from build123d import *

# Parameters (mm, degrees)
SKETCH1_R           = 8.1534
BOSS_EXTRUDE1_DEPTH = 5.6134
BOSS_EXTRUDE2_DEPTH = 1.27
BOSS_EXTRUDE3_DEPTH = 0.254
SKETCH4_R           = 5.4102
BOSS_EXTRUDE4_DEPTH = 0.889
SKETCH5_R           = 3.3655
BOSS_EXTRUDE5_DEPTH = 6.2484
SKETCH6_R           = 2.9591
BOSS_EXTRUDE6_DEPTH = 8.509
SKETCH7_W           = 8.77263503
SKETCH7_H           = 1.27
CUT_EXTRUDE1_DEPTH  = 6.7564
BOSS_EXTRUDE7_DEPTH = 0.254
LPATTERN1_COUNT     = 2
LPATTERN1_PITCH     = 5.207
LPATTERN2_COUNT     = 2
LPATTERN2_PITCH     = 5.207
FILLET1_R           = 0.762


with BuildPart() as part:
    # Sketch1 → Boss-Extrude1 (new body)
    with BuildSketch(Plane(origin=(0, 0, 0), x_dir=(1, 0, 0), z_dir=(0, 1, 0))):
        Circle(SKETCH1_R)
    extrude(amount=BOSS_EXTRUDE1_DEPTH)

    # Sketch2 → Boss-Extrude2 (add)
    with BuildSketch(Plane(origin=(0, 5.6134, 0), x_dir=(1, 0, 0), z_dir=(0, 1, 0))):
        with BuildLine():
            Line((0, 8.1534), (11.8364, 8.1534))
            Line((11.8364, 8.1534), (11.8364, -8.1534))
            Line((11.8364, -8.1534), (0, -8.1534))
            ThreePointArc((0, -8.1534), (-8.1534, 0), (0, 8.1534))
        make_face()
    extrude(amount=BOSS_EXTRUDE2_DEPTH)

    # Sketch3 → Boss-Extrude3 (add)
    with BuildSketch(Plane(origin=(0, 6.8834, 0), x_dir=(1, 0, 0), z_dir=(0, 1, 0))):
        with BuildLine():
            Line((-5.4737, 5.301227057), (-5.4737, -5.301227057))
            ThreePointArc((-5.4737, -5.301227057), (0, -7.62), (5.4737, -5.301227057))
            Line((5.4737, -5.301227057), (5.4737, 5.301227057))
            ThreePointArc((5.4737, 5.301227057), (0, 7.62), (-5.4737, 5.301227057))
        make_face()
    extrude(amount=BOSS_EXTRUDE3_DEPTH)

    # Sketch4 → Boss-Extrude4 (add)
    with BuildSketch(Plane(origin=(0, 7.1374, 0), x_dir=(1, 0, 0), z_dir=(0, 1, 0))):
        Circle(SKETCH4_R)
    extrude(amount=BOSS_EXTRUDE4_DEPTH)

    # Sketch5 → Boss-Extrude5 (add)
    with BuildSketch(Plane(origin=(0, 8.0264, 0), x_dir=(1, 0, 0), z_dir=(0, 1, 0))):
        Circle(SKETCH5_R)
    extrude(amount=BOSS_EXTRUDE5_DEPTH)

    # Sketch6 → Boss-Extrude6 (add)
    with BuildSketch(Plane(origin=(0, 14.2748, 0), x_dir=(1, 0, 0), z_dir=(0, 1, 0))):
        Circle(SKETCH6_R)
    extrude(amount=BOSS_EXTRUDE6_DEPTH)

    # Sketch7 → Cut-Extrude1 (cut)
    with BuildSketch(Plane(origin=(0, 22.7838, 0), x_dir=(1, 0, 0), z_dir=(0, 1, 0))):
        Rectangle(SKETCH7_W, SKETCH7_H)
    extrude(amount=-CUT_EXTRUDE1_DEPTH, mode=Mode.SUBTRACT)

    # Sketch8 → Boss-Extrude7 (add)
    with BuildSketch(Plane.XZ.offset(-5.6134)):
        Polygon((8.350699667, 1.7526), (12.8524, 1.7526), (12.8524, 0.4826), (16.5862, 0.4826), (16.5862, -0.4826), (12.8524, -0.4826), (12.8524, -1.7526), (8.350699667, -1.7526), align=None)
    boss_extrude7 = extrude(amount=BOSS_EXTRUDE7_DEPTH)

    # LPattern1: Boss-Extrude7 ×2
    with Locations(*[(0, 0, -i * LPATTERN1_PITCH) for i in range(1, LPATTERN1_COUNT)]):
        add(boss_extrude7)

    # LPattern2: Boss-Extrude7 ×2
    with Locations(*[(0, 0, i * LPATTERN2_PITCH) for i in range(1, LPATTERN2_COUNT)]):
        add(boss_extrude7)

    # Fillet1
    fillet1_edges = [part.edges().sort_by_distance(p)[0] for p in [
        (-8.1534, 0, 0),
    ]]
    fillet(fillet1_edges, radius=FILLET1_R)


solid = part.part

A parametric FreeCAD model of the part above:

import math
import FreeCAD as App
import Part
import Sketcher

V = App.Vector
Q = App.Units.Quantity


def edges_at(feature, points):
    """Names of the edges that pass closest to the given points."""
    edges = feature.Shape.Edges
    near = lambda p: min(range(len(edges)), key=lambda i: edges[i].distToShape(Part.Vertex(*p))[0])
    return sorted({f"Edge{near(p) + 1}" for p in points})

doc = App.newDocument("Part")
params = doc.addObject("Spreadsheet::Sheet", "Params")
for row, (alias, value) in enumerate([
    ("sketch1_diameter", "0.642 in"),
    ("pad1_length", "0.221 in"),
    ("sketch2_radius", "0.321 in"),
    ("sketch2_width", "0.466 in"),
    ("pad2_length", "0.05 in"),
    ("sketch3_radius", "0.3 in"),
    ("pad3_length", "0.01 in"),
    ("sketch4_diameter", "0.426 in"),
    ("pad4_length", "0.035 in"),
    ("sketch5_diameter", "0.265 in"),
    ("pad5_length", "0.246 in"),
    ("sketch6_diameter", "0.233 in"),
    ("pad6_length", "0.335 in"),
    ("sketch7_height", "0.05 in"),
    ("pocket1_length", "0.266 in"),
    ("sketch8_height", "0.05 in"),
    ("sketch8_width", "0.147 in"),
    ("sketch8_height2", "0.138 in"),
    ("pad7_length", "0.01 in"),
    ("linearpattern_pitch", "0.205 in"),
    ("linearpattern2_pitch", "0.205 in"),
    ("fillet_radius", "0.03 in"),
], start=1):
    params.set(f"A{row}", alias)
    params.set(f"B{row}", "=" + value)
    params.setAlias(f"B{row}", alias)

body = doc.addObject("PartDesign::Body", "Body")

sketch1 = doc.addObject("Sketcher::SketchObject", "Sketch")
body.addObject(sketch1)
sketch1.AttachmentSupport = (doc.XZ_Plane, [""])
sketch1.MapMode = "FlatFace"
sketch1.addGeometry(Part.Circle(V(0, 0, 0), V(0, 0, 1), 8.1534), False)
sketch1.addConstraint([
    Sketcher.Constraint("Coincident", 0, 3, -1, 1),
    Sketcher.Constraint("Diameter", 0, Q("0.642 in")),
])
sketch1.setExpression("Constraints[1]", "Params.sketch1_diameter")
pad1 = doc.addObject("PartDesign::Pad", "Pad")
body.addObject(pad1)
pad1.Profile = sketch1
pad1.setExpression("Length", "Params.pad1_length")
pad1.Reversed = True

sketch2 = doc.addObject("Sketcher::SketchObject", "Sketch001")
body.addObject(sketch2)
sketch2.AttachmentSupport = (doc.XZ_Plane, [""])
sketch2.MapMode = "FlatFace"
sketch2.AttachmentOffset = App.Placement(V(0, 0, -0.221 * 25.4), App.Rotation())
sketch2.addGeometry([
    Part.LineSegment(V(11.8364, -8.1534, 0), V(0, -8.1534, 0)),
    Part.ArcOfCircle(Part.Circle(V(0, 0, 0), V(0, 0, 1), 8.1534), math.radians(90), math.radians(270)),
    Part.LineSegment(V(0, 8.1534, 0), V(11.8364, 8.1534, 0)),
    Part.LineSegment(V(11.8364, 8.1534, 0), V(11.8364, -8.1534, 0)),
], False)
sketch2.addConstraint([
    Sketcher.Constraint("Tangent", 0, 2, 1, 2),
    Sketcher.Constraint("Tangent", 1, 1, 2, 1),
    Sketcher.Constraint("Coincident", 2, 2, 3, 1),
    Sketcher.Constraint("Coincident", 3, 2, 0, 1),
    Sketcher.Constraint("Horizontal", 0),
    Sketcher.Constraint("Horizontal", 2),
    Sketcher.Constraint("Vertical", 3),
    Sketcher.Constraint("Coincident", 1, 3, -1, 1),
    Sketcher.Constraint("Radius", 1, Q("0.321 in")),
    Sketcher.Constraint("DistanceX", 0, 2, 0, 1, Q("0.466 in")),
])
sketch2.setExpression("Constraints[8]", "Params.sketch2_radius")
sketch2.setExpression("Constraints[9]", "Params.sketch2_width")
pad2 = doc.addObject("PartDesign::Pad", "Pad001")
body.addObject(pad2)
pad2.Profile = sketch2
pad2.setExpression("Length", "Params.pad2_length")
pad2.Reversed = True

sketch3 = doc.addObject("Sketcher::SketchObject", "Sketch002")
body.addObject(sketch3)
sketch3.AttachmentSupport = (doc.XZ_Plane, [""])
sketch3.MapMode = "FlatFace"
sketch3.AttachmentOffset = App.Placement(V(0, 0, -0.271 * 25.4), App.Rotation())
sketch3.addGeometry([
    Part.LineSegment(V(-5.4737, -5.301227, 0), V(-5.4737, 5.301227, 0)),
    Part.ArcOfCircle(Part.Circle(V(0, 0, 0), V(0, 0, 1), 7.62), math.radians(44.082952), math.radians(135.917048)),
    Part.LineSegment(V(5.4737, 5.301227, 0), V(5.4737, -5.301227, 0)),
    Part.ArcOfCircle(Part.Circle(V(0, 0, 0), V(0, 0, 1), 7.62), math.radians(-135.917048), math.radians(-44.082952)),
], False)
sketch3.addConstraint([
    Sketcher.Constraint("Coincident", 0, 2, 1, 2),
    Sketcher.Constraint("Coincident", 1, 1, 2, 1),
    Sketcher.Constraint("Coincident", 2, 2, 3, 2),
    Sketcher.Constraint("Coincident", 3, 1, 0, 1),
    Sketcher.Constraint("Vertical", 0),
    Sketcher.Constraint("Vertical", 2),
    Sketcher.Constraint("Coincident", 1, 3, -1, 1),
    Sketcher.Constraint("Coincident", 3, 3, -1, 1),
    Sketcher.Constraint("Equal", 1, 3),
    Sketcher.Constraint("Horizontal", 0, 2, 1, 1),
    Sketcher.Constraint("Radius", 1, Q("0.3 in")),
    Sketcher.Constraint("DistanceX", 0, 2, 1, 1, Q("0.431 in")),
])
sketch3.setExpression("Constraints[10]", "Params.sketch3_radius")
pad3 = doc.addObject("PartDesign::Pad", "Pad002")
body.addObject(pad3)
pad3.Profile = sketch3
pad3.setExpression("Length", "Params.pad3_length")
pad3.Reversed = True

sketch4 = doc.addObject("Sketcher::SketchObject", "Sketch003")
body.addObject(sketch4)
sketch4.AttachmentSupport = (doc.XZ_Plane, [""])
sketch4.MapMode = "FlatFace"
sketch4.AttachmentOffset = App.Placement(V(0, 0, -0.281 * 25.4), App.Rotation())
sketch4.addGeometry(Part.Circle(V(0, 0, 0), V(0, 0, 1), 5.4102), False)
sketch4.addConstraint([
    Sketcher.Constraint("Coincident", 0, 3, -1, 1),
    Sketcher.Constraint("Diameter", 0, Q("0.426 in")),
])
sketch4.setExpression("Constraints[1]", "Params.sketch4_diameter")
pad4 = doc.addObject("PartDesign::Pad", "Pad003")
body.addObject(pad4)
pad4.Profile = sketch4
pad4.setExpression("Length", "Params.pad4_length")
pad4.Reversed = True

sketch5 = doc.addObject("Sketcher::SketchObject", "Sketch004")
body.addObject(sketch5)
sketch5.AttachmentSupport = (doc.XZ_Plane, [""])
sketch5.MapMode = "FlatFace"
sketch5.AttachmentOffset = App.Placement(V(0, 0, -0.316 * 25.4), App.Rotation())
sketch5.addGeometry(Part.Circle(V(0, 0, 0), V(0, 0, 1), 3.3655), False)
sketch5.addConstraint([
    Sketcher.Constraint("Coincident", 0, 3, -1, 1),
    Sketcher.Constraint("Diameter", 0, Q("0.265 in")),
])
sketch5.setExpression("Constraints[1]", "Params.sketch5_diameter")
pad5 = doc.addObject("PartDesign::Pad", "Pad004")
body.addObject(pad5)
pad5.Profile = sketch5
pad5.setExpression("Length", "Params.pad5_length")
pad5.Reversed = True

sketch6 = doc.addObject("Sketcher::SketchObject", "Sketch005")
body.addObject(sketch6)
sketch6.AttachmentSupport = (doc.XZ_Plane, [""])
sketch6.MapMode = "FlatFace"
sketch6.AttachmentOffset = App.Placement(V(0, 0, -0.562 * 25.4), App.Rotation())
sketch6.addGeometry(Part.Circle(V(0, 0, 0), V(0, 0, 1), 2.9591), False)
sketch6.addConstraint([
    Sketcher.Constraint("Coincident", 0, 3, -1, 1),
    Sketcher.Constraint("Diameter", 0, Q("0.233 in")),
])
sketch6.setExpression("Constraints[1]", "Params.sketch6_diameter")
pad6 = doc.addObject("PartDesign::Pad", "Pad005")
body.addObject(pad6)
pad6.Profile = sketch6
pad6.setExpression("Length", "Params.pad6_length")
pad6.Reversed = True

sketch7 = doc.addObject("Sketcher::SketchObject", "Sketch006")
body.addObject(sketch7)
sketch7.AttachmentSupport = (doc.XZ_Plane, [""])
sketch7.MapMode = "FlatFace"
sketch7.AttachmentOffset = App.Placement(V(0, 0, -0.897 * 25.4), App.Rotation())
sketch7.addGeometry([
    Part.LineSegment(V(-4.386318, -0.635, 0), V(-4.386318, 0.635, 0)),
    Part.LineSegment(V(-4.386318, 0.635, 0), V(4.386318, 0.635, 0)),
    Part.LineSegment(V(4.386318, 0.635, 0), V(4.386318, -0.635, 0)),
    Part.LineSegment(V(4.386318, -0.635, 0), V(-4.386318, -0.635, 0)),
], False)
sketch7.addConstraint([
    Sketcher.Constraint("Coincident", 0, 2, 1, 1),
    Sketcher.Constraint("Coincident", 1, 2, 2, 1),
    Sketcher.Constraint("Coincident", 2, 2, 3, 1),
    Sketcher.Constraint("Coincident", 3, 2, 0, 1),
    Sketcher.Constraint("Vertical", 0),
    Sketcher.Constraint("Horizontal", 1),
    Sketcher.Constraint("Vertical", 2),
    Sketcher.Constraint("Horizontal", 3),
    Sketcher.Constraint("Symmetric", 0, 2, 2, 2, -1, 1),
    Sketcher.Constraint("DistanceY", 0, 1, 0, 2, Q("0.05 in")),
    Sketcher.Constraint("DistanceX", 1, 1, 1, 2, 8.772635),
])
sketch7.setExpression("Constraints[9]", "Params.sketch7_height")
pocket1 = doc.addObject("PartDesign::Pocket", "Pocket")
body.addObject(pocket1)
pocket1.Profile = sketch7
pocket1.setExpression("Length", "Params.pocket1_length")
pocket1.Reversed = True

sketch8 = doc.addObject("Sketcher::SketchObject", "Sketch007")
body.addObject(sketch8)
sketch8.AttachmentSupport = (doc.XZ_Plane, [""])
sketch8.MapMode = "FlatFace"
sketch8.AttachmentOffset = App.Placement(V(0, 0, -0.221 * 25.4), App.Rotation())
sketch8.addGeometry([
    Part.LineSegment(V(12.8524, 1.7526, 0), V(8.3507, 1.7526, 0)),
    Part.LineSegment(V(8.3507, 1.7526, 0), V(8.3507, -1.7526, 0)),
    Part.LineSegment(V(8.3507, -1.7526, 0), V(12.8524, -1.7526, 0)),
    Part.LineSegment(V(12.8524, -1.7526, 0), V(12.8524, -0.4826, 0)),
    Part.LineSegment(V(12.8524, -0.4826, 0), V(16.5862, -0.4826, 0)),
    Part.LineSegment(V(16.5862, -0.4826, 0), V(16.5862, 0.4826, 0)),
    Part.LineSegment(V(16.5862, 0.4826, 0), V(12.8524, 0.4826, 0)),
    Part.LineSegment(V(12.8524, 0.4826, 0), V(12.8524, 1.7526, 0)),
], False)
sketch8.addConstraint([
    Sketcher.Constraint("Coincident", 0, 2, 1, 1),
    Sketcher.Constraint("Coincident", 1, 2, 2, 1),
    Sketcher.Constraint("Coincident", 2, 2, 3, 1),
    Sketcher.Constraint("Coincident", 3, 2, 4, 1),
    Sketcher.Constraint("Coincident", 4, 2, 5, 1),
    Sketcher.Constraint("Coincident", 5, 2, 6, 1),
    Sketcher.Constraint("Coincident", 6, 2, 7, 1),
    Sketcher.Constraint("Coincident", 7, 2, 0, 1),
    Sketcher.Constraint("Horizontal", 0),
    Sketcher.Constraint("Vertical", 1),
    Sketcher.Constraint("Horizontal", 2),
    Sketcher.Constraint("Vertical", 3),
    Sketcher.Constraint("Horizontal", 4),
    Sketcher.Constraint("Vertical", 5),
    Sketcher.Constraint("Horizontal", 6),
    Sketcher.Constraint("Vertical", 7),
    Sketcher.Constraint("Symmetric", 3, 2, 6, 2, -1),
    Sketcher.Constraint("Equal", 3, 7),
    Sketcher.Constraint("DistanceY", 3, 1, 3, 2, Q("0.05 in")),
    Sketcher.Constraint("DistanceX", 4, 1, 4, 2, Q("0.147 in")),
    Sketcher.Constraint("DistanceY", 1, 2, 1, 1, Q("0.138 in")),
    Sketcher.Constraint("DistanceX", -1, 1, 2, 2, Q("0.506 in")),
    Sketcher.Constraint("DistanceX", 0, 2, 0, 1, 4.5017),
])
sketch8.setExpression("Constraints[18]", "Params.sketch8_height")
sketch8.setExpression("Constraints[19]", "Params.sketch8_width")
sketch8.setExpression("Constraints[20]", "Params.sketch8_height2")
pad7 = doc.addObject("PartDesign::Pad", "Pad006")
body.addObject(pad7)
pad7.Profile = sketch8
pad7.setExpression("Length", "Params.pad7_length")
doc.recompute()

linearpattern = doc.addObject("PartDesign::LinearPattern", "LinearPattern")
body.addObject(linearpattern)
linearpattern.Originals = [pad7]
linearpattern.Direction = (doc.Z_Axis, [""])
linearpattern.Mode = "offset"
linearpattern.setExpression("Offset", "Params.linearpattern_pitch")
linearpattern.Occurrences = 2
linearpattern.Reversed = True
body.Tip = linearpattern
doc.recompute()

linearpattern2 = doc.addObject("PartDesign::LinearPattern", "LinearPattern001")
body.addObject(linearpattern2)
linearpattern2.Originals = [pad7]
linearpattern2.Direction = (doc.Z_Axis, [""])
linearpattern2.Mode = "offset"
linearpattern2.setExpression("Offset", "Params.linearpattern2_pitch")
linearpattern2.Occurrences = 2
body.Tip = linearpattern2
doc.recompute()

fillet = doc.addObject("PartDesign::Fillet", "Fillet")
body.addObject(fillet)
fillet.Base = (linearpattern2, edges_at(linearpattern2, [(-8.153, 0, 0)]))
fillet.setExpression("Radius", "Params.fillet_radius")

doc.recompute()
